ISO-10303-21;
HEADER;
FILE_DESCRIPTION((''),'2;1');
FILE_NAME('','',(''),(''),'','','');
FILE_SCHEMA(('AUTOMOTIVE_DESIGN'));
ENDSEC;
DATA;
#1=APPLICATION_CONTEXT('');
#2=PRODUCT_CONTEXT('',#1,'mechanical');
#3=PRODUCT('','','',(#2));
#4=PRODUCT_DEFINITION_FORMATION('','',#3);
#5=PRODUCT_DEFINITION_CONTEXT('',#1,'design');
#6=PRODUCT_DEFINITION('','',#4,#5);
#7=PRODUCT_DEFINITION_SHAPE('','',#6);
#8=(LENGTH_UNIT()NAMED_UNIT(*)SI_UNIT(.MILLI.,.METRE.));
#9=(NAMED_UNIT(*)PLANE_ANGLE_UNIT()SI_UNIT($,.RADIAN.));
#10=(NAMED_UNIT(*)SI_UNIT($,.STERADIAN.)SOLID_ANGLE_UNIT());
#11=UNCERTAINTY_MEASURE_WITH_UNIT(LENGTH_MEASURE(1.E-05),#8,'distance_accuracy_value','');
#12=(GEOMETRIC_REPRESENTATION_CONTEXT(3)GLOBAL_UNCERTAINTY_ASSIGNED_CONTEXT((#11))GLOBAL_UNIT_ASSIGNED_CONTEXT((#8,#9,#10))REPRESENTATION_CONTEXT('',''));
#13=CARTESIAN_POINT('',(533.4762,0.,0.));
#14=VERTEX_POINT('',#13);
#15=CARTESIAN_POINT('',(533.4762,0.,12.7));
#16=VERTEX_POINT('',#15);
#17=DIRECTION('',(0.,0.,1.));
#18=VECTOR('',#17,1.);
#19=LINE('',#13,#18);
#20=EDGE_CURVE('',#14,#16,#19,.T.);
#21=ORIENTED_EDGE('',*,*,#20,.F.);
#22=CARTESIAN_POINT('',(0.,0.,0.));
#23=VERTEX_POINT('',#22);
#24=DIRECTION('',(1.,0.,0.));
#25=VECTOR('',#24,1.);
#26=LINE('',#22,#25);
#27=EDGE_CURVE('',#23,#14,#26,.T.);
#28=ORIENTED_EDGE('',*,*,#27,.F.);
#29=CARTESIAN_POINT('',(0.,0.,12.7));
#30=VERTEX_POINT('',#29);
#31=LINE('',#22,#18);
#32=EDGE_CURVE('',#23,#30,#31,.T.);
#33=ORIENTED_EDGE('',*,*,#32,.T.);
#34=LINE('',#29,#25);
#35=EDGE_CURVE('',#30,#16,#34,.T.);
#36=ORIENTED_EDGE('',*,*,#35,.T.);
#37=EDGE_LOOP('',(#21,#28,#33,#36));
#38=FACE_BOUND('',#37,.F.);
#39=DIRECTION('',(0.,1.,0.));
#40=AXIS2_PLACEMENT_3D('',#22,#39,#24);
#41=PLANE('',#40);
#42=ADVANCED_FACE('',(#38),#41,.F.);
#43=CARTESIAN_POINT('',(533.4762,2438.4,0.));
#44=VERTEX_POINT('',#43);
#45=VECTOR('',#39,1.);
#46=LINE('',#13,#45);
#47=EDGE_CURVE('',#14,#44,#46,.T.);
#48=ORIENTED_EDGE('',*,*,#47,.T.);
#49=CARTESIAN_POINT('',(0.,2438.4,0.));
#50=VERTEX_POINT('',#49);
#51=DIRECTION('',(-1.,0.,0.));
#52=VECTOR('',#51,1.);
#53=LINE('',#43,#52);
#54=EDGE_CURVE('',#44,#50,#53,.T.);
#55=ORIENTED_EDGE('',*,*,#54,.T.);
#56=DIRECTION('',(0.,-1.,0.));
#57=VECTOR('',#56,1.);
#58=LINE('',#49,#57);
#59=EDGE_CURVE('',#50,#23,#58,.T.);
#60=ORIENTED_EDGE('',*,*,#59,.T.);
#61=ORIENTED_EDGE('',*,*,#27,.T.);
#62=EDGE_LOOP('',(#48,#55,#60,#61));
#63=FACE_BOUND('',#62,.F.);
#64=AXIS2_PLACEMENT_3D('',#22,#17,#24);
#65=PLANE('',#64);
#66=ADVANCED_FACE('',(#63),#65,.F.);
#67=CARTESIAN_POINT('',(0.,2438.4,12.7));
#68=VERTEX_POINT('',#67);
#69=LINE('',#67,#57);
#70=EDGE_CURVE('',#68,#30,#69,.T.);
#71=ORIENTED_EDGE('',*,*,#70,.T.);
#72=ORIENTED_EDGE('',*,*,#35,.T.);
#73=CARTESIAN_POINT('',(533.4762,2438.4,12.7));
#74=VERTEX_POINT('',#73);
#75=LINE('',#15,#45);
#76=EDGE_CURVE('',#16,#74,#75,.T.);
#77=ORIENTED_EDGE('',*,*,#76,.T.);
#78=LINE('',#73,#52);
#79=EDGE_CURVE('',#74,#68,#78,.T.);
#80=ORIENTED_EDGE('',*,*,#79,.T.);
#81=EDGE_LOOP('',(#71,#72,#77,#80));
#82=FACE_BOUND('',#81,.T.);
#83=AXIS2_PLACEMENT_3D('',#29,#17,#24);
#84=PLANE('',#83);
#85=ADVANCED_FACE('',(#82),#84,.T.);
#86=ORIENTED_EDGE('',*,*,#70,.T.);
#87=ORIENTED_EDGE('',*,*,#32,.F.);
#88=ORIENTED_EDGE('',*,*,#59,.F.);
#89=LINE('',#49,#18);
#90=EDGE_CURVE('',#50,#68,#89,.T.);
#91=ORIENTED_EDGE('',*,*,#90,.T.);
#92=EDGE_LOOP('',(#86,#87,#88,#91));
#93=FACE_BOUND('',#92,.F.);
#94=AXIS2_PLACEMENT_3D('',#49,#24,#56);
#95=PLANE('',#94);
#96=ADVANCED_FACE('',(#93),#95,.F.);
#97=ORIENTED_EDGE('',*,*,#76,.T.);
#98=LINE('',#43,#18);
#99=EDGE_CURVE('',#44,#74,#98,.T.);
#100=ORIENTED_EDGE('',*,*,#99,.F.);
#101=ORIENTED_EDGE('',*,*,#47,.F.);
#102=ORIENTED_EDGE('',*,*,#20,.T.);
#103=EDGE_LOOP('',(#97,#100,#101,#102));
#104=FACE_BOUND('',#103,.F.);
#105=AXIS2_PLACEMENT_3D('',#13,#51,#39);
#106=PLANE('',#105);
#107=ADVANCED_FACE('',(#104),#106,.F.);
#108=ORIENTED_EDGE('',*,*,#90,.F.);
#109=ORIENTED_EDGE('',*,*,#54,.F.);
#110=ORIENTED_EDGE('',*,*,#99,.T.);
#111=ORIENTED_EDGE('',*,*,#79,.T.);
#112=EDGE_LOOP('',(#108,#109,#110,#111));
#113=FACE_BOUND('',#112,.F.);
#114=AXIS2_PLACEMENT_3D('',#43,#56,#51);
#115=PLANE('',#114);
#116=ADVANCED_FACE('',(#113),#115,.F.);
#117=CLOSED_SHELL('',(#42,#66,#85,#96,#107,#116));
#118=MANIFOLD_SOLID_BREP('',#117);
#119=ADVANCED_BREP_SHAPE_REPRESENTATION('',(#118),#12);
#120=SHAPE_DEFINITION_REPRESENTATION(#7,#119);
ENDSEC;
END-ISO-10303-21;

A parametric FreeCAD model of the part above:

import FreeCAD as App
import Part
import Sketcher
from FreeCAD import Vector
Q = App.Units.Quantity

doc = App.newDocument("Part")
body = doc.addObject("PartDesign::Body", "Body")

# Sketch on XY plane
sketch1 = body.newObject("Sketcher::SketchObject", "Sketch")
sketch1.AttachmentSupport = (doc.getObject("XY_Plane"), [""])
sketch1.MapMode = "FlatFace"
sketch1.addGeometry(Part.LineSegment(Vector(0, 2438, 0), Vector(0, 0, 0)), False)
sketch1.addGeometry(Part.LineSegment(Vector(0, 0, 0), Vector(533, 0, 0)), False)
sketch1.addGeometry(Part.LineSegment(Vector(533, 0, 0), Vector(533, 2438, 0)), False)
sketch1.addGeometry(Part.LineSegment(Vector(533, 2438, 0), Vector(0, 2438, 0)), False)
sketch1.addConstraint(Sketcher.Constraint("Coincident", 0, 2, 1, 1))
sketch1.addConstraint(Sketcher.Constraint("Coincident", 1, 2, 2, 1))
sketch1.addConstraint(Sketcher.Constraint("Coincident", 2, 2, 3, 1))
sketch1.addConstraint(Sketcher.Constraint("Coincident", 3, 2, 0, 1))
sketch1.addConstraint(Sketcher.Constraint("Vertical", 0))
sketch1.addConstraint(Sketcher.Constraint("Horizontal", 1))
sketch1.addConstraint(Sketcher.Constraint("Vertical", 2))
sketch1.addConstraint(Sketcher.Constraint("Horizontal", 3))
sketch1.addConstraint(Sketcher.Constraint("Coincident", 0, 2, -1, 1))
sketch1.addConstraint(Sketcher.Constraint("DistanceY", 0, 2, 0, 1, Q("96 in")))
sketch1.addConstraint(Sketcher.Constraint("DistanceX", 1, 1, 1, 2, Q("21.003 in")))
pad1 = body.newObject("PartDesign::Pad", "Pad")
pad1.Profile = sketch1
pad1.Length = Q("0.5 in")

doc.recompute()
